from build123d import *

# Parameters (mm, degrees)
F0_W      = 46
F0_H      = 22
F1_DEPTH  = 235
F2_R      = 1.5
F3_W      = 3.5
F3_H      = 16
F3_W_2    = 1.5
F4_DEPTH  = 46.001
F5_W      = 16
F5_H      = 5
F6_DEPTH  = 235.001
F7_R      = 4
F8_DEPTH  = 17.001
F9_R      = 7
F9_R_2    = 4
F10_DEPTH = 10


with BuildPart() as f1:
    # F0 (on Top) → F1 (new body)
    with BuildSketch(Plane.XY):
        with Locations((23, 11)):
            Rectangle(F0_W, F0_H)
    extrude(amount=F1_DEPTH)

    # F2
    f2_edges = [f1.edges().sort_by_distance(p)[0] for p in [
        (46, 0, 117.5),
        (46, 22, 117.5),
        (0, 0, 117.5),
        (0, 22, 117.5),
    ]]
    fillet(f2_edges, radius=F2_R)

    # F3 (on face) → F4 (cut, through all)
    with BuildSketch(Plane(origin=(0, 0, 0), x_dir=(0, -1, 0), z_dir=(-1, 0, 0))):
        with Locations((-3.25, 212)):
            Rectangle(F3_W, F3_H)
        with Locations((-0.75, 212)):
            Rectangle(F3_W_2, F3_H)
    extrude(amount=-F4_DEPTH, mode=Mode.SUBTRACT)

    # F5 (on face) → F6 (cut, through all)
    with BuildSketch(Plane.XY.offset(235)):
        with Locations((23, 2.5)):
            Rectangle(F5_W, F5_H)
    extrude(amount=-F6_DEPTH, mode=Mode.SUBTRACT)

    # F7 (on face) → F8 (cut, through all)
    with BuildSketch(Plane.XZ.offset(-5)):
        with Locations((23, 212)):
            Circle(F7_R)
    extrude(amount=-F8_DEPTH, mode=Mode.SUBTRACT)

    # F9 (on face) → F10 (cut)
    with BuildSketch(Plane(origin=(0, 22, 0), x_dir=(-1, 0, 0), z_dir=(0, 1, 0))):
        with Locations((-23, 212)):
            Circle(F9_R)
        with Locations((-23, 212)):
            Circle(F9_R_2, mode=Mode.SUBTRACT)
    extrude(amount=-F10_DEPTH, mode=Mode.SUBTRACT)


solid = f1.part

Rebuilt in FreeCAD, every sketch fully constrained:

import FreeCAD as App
import Part
import Sketcher
Q = App.Units.Quantity


def edges_at(feature, points):
    """Names of the edges that pass closest to the given points."""
    edges = feature.Shape.Edges
    near = lambda p: min(range(len(edges)), key=lambda i: edges[i].distToShape(Part.Vertex(*p))[0])
    return sorted({f"Edge{near(p) + 1}" for p in points})


def add_polygon(sketch, points):
    """Adds a closed chain of lines whose ends are joined by coincident constraints."""
    first, n = sketch.GeometryCount, len(points)
    for a, b in zip(points, points[1:] + points[:1]):
        sketch.addGeometry(Part.LineSegment(App.Vector(*a, 0), App.Vector(*b, 0)), False)
    for i in range(n):
        sketch.addConstraint(Sketcher.Constraint("Coincident", first + i, 2, first + (i + 1) % n, 1))

doc = App.newDocument("Part")
body = doc.addObject("PartDesign::Body", "Body")

# Sketch on XY plane
sketch1 = body.newObject("Sketcher::SketchObject", "Sketch")
sketch1.AttachmentSupport = (doc.getObject("XY_Plane"), [""])
sketch1.MapMode = "FlatFace"
add_polygon(sketch1, [(0, 22), (0, 0), (46, 0), (46, 22)])  # lines 0-3
sketch1.addConstraint(Sketcher.Constraint("Vertical", 0))
sketch1.addConstraint(Sketcher.Constraint("Horizontal", 1))
sketch1.addConstraint(Sketcher.Constraint("Vertical", 2))
sketch1.addConstraint(Sketcher.Constraint("Horizontal", 3))
sketch1.addConstraint(Sketcher.Constraint("Coincident", 0, 2, -1, 1))
sketch1.addConstraint(Sketcher.Constraint("DistanceX", 1, 1, 1, 2, Q("46 mm")))
sketch1.addConstraint(Sketcher.Constraint("DistanceY", 0, 2, 0, 1, Q("22 mm")))
pad1 = body.newObject("PartDesign::Pad", "Pad")
pad1.Profile = sketch1
pad1.Length = 235
doc.recompute()

fillet = body.newObject("PartDesign::Fillet", "Fillet")
fillet.Base = (pad1, edges_at(pad1, [
    (46, 0, 117.5),
    (46, 22, 117.5),
    (0, 0, 117.5),
    (0, 22, 117.5),
]))
fillet.Radius = 1.5

# Sketch on YZ plane
sketch2 = body.newObject("Sketcher::SketchObject", "Sketch001")
sketch2.AttachmentSupport = (doc.getObject("YZ_Plane"), [""])
sketch2.MapMode = "FlatFace"
add_polygon(sketch2, [(5, 220), (5, 204), (0, 204), (0, 220)])  # lines 0-3
sketch2.addConstraint(Sketcher.Constraint("Vertical", 0))
sketch2.addConstraint(Sketcher.Constraint("Horizontal", 1))
sketch2.addConstraint(Sketcher.Constraint("Vertical", 2))
sketch2.addConstraint(Sketcher.Constraint("Horizontal", 3))
sketch2.addConstraint(Sketcher.Constraint("PointOnObject", 1, 2, -2))
sketch2.addConstraint(Sketcher.Constraint("DistanceX", 1, 2, 1, 1, Q("5 mm")))
sketch2.addConstraint(Sketcher.Constraint("DistanceY", 0, 2, 0, 1, Q("16 mm")))
sketch2.addConstraint(Sketcher.Constraint("DistanceY", -1, 1, 0, 2, Q("204 mm")))
pocket1 = body.newObject("PartDesign::Pocket", "Pocket")
pocket1.Profile = sketch2
pocket1.Type = "ThroughAll"
pocket1.Reversed = True

# Sketch on XY plane
sketch3 = body.newObject("Sketcher::SketchObject", "Sketch002")
sketch3.AttachmentSupport = (doc.getObject("XY_Plane"), [""])
sketch3.MapMode = "FlatFace"
sketch3.AttachmentOffset = App.Placement(App.Vector(0, 0, 235), App.Rotation())
add_polygon(sketch3, [(15, 5), (15, 0), (31, 0), (31, 5)])  # lines 0-3
sketch3.addConstraint(Sketcher.Constraint("Vertical", 0))
sketch3.addConstraint(Sketcher.Constraint("Horizontal", 1))
sketch3.addConstraint(Sketcher.Constraint("Vertical", 2))
sketch3.addConstraint(Sketcher.Constraint("Horizontal", 3))
sketch3.addConstraint(Sketcher.Constraint("PointOnObject", 0, 2, -1))
sketch3.addConstraint(Sketcher.Constraint("DistanceX", 1, 1, 1, 2, Q("16 mm")))
sketch3.addConstraint(Sketcher.Constraint("DistanceY", 0, 2, 0, 1, Q("5 mm")))
sketch3.addConstraint(Sketcher.Constraint("DistanceX", -1, 1, 0, 2, Q("15 mm")))
pocket2 = body.newObject("PartDesign::Pocket", "Pocket001")
pocket2.Profile = sketch3
pocket2.Type = "ThroughAll"

# Sketch on XZ plane
sketch4 = body.newObject("Sketcher::SketchObject", "Sketch003")
sketch4.AttachmentSupport = (doc.getObject("XZ_Plane"), [""])
sketch4.MapMode = "FlatFace"
sketch4.AttachmentOffset = App.Placement(App.Vector(0, 0, -5), App.Rotation())
sketch4.addGeometry(Part.Circle(App.Vector(23, 212, 0), App.Vector(0, 0, 1), 4), False)
sketch4.addConstraint(Sketcher.Constraint("Diameter", 0, Q("8 mm")))
sketch4.addConstraint(Sketcher.Constraint("DistanceX", -1, 1, 0, 3, Q("23 mm")))
sketch4.addConstraint(Sketcher.Constraint("DistanceY", -1, 1, 0, 3, Q("212 mm")))
pocket3 = body.newObject("PartDesign::Pocket", "Pocket002")
pocket3.Profile = sketch4
pocket3.Type = "ThroughAll"

# Sketch on XZ plane
sketch5 = body.newObject("Sketcher::SketchObject", "Sketch004")
sketch5.AttachmentSupport = (doc.getObject("XZ_Plane"), [""])
sketch5.MapMode = "FlatFace"
sketch5.AttachmentOffset = App.Placement(App.Vector(0, 0, -22), App.Rotation())
sketch5.addGeometry(Part.Circle(App.Vector(23, 212, 0), App.Vector(0, 0, 1), 7), False)
sketch5.addGeometry(Part.Circle(App.Vector(23, 212, 0), App.Vector(0, 0, 1), 4), False)
sketch5.addConstraint(Sketcher.Constraint("Coincident", 1, 3, 0, 3))
sketch5.addConstraint(Sketcher.Constraint("Diameter", 0, Q("14 mm")))
sketch5.addConstraint(Sketcher.Constraint("Diameter", 1, Q("8 mm")))
sketch5.addConstraint(Sketcher.Constraint("DistanceX", -1, 1, 0, 3, Q("23 mm")))
sketch5.addConstraint(Sketcher.Constraint("DistanceY", -1, 1, 0, 3, Q("212 mm")))
pocket4 = body.newObject("PartDesign::Pocket", "Pocket003")
pocket4.Profile = sketch5
pocket4.Length = 10
pocket4.Reversed = True

doc.recompute()
